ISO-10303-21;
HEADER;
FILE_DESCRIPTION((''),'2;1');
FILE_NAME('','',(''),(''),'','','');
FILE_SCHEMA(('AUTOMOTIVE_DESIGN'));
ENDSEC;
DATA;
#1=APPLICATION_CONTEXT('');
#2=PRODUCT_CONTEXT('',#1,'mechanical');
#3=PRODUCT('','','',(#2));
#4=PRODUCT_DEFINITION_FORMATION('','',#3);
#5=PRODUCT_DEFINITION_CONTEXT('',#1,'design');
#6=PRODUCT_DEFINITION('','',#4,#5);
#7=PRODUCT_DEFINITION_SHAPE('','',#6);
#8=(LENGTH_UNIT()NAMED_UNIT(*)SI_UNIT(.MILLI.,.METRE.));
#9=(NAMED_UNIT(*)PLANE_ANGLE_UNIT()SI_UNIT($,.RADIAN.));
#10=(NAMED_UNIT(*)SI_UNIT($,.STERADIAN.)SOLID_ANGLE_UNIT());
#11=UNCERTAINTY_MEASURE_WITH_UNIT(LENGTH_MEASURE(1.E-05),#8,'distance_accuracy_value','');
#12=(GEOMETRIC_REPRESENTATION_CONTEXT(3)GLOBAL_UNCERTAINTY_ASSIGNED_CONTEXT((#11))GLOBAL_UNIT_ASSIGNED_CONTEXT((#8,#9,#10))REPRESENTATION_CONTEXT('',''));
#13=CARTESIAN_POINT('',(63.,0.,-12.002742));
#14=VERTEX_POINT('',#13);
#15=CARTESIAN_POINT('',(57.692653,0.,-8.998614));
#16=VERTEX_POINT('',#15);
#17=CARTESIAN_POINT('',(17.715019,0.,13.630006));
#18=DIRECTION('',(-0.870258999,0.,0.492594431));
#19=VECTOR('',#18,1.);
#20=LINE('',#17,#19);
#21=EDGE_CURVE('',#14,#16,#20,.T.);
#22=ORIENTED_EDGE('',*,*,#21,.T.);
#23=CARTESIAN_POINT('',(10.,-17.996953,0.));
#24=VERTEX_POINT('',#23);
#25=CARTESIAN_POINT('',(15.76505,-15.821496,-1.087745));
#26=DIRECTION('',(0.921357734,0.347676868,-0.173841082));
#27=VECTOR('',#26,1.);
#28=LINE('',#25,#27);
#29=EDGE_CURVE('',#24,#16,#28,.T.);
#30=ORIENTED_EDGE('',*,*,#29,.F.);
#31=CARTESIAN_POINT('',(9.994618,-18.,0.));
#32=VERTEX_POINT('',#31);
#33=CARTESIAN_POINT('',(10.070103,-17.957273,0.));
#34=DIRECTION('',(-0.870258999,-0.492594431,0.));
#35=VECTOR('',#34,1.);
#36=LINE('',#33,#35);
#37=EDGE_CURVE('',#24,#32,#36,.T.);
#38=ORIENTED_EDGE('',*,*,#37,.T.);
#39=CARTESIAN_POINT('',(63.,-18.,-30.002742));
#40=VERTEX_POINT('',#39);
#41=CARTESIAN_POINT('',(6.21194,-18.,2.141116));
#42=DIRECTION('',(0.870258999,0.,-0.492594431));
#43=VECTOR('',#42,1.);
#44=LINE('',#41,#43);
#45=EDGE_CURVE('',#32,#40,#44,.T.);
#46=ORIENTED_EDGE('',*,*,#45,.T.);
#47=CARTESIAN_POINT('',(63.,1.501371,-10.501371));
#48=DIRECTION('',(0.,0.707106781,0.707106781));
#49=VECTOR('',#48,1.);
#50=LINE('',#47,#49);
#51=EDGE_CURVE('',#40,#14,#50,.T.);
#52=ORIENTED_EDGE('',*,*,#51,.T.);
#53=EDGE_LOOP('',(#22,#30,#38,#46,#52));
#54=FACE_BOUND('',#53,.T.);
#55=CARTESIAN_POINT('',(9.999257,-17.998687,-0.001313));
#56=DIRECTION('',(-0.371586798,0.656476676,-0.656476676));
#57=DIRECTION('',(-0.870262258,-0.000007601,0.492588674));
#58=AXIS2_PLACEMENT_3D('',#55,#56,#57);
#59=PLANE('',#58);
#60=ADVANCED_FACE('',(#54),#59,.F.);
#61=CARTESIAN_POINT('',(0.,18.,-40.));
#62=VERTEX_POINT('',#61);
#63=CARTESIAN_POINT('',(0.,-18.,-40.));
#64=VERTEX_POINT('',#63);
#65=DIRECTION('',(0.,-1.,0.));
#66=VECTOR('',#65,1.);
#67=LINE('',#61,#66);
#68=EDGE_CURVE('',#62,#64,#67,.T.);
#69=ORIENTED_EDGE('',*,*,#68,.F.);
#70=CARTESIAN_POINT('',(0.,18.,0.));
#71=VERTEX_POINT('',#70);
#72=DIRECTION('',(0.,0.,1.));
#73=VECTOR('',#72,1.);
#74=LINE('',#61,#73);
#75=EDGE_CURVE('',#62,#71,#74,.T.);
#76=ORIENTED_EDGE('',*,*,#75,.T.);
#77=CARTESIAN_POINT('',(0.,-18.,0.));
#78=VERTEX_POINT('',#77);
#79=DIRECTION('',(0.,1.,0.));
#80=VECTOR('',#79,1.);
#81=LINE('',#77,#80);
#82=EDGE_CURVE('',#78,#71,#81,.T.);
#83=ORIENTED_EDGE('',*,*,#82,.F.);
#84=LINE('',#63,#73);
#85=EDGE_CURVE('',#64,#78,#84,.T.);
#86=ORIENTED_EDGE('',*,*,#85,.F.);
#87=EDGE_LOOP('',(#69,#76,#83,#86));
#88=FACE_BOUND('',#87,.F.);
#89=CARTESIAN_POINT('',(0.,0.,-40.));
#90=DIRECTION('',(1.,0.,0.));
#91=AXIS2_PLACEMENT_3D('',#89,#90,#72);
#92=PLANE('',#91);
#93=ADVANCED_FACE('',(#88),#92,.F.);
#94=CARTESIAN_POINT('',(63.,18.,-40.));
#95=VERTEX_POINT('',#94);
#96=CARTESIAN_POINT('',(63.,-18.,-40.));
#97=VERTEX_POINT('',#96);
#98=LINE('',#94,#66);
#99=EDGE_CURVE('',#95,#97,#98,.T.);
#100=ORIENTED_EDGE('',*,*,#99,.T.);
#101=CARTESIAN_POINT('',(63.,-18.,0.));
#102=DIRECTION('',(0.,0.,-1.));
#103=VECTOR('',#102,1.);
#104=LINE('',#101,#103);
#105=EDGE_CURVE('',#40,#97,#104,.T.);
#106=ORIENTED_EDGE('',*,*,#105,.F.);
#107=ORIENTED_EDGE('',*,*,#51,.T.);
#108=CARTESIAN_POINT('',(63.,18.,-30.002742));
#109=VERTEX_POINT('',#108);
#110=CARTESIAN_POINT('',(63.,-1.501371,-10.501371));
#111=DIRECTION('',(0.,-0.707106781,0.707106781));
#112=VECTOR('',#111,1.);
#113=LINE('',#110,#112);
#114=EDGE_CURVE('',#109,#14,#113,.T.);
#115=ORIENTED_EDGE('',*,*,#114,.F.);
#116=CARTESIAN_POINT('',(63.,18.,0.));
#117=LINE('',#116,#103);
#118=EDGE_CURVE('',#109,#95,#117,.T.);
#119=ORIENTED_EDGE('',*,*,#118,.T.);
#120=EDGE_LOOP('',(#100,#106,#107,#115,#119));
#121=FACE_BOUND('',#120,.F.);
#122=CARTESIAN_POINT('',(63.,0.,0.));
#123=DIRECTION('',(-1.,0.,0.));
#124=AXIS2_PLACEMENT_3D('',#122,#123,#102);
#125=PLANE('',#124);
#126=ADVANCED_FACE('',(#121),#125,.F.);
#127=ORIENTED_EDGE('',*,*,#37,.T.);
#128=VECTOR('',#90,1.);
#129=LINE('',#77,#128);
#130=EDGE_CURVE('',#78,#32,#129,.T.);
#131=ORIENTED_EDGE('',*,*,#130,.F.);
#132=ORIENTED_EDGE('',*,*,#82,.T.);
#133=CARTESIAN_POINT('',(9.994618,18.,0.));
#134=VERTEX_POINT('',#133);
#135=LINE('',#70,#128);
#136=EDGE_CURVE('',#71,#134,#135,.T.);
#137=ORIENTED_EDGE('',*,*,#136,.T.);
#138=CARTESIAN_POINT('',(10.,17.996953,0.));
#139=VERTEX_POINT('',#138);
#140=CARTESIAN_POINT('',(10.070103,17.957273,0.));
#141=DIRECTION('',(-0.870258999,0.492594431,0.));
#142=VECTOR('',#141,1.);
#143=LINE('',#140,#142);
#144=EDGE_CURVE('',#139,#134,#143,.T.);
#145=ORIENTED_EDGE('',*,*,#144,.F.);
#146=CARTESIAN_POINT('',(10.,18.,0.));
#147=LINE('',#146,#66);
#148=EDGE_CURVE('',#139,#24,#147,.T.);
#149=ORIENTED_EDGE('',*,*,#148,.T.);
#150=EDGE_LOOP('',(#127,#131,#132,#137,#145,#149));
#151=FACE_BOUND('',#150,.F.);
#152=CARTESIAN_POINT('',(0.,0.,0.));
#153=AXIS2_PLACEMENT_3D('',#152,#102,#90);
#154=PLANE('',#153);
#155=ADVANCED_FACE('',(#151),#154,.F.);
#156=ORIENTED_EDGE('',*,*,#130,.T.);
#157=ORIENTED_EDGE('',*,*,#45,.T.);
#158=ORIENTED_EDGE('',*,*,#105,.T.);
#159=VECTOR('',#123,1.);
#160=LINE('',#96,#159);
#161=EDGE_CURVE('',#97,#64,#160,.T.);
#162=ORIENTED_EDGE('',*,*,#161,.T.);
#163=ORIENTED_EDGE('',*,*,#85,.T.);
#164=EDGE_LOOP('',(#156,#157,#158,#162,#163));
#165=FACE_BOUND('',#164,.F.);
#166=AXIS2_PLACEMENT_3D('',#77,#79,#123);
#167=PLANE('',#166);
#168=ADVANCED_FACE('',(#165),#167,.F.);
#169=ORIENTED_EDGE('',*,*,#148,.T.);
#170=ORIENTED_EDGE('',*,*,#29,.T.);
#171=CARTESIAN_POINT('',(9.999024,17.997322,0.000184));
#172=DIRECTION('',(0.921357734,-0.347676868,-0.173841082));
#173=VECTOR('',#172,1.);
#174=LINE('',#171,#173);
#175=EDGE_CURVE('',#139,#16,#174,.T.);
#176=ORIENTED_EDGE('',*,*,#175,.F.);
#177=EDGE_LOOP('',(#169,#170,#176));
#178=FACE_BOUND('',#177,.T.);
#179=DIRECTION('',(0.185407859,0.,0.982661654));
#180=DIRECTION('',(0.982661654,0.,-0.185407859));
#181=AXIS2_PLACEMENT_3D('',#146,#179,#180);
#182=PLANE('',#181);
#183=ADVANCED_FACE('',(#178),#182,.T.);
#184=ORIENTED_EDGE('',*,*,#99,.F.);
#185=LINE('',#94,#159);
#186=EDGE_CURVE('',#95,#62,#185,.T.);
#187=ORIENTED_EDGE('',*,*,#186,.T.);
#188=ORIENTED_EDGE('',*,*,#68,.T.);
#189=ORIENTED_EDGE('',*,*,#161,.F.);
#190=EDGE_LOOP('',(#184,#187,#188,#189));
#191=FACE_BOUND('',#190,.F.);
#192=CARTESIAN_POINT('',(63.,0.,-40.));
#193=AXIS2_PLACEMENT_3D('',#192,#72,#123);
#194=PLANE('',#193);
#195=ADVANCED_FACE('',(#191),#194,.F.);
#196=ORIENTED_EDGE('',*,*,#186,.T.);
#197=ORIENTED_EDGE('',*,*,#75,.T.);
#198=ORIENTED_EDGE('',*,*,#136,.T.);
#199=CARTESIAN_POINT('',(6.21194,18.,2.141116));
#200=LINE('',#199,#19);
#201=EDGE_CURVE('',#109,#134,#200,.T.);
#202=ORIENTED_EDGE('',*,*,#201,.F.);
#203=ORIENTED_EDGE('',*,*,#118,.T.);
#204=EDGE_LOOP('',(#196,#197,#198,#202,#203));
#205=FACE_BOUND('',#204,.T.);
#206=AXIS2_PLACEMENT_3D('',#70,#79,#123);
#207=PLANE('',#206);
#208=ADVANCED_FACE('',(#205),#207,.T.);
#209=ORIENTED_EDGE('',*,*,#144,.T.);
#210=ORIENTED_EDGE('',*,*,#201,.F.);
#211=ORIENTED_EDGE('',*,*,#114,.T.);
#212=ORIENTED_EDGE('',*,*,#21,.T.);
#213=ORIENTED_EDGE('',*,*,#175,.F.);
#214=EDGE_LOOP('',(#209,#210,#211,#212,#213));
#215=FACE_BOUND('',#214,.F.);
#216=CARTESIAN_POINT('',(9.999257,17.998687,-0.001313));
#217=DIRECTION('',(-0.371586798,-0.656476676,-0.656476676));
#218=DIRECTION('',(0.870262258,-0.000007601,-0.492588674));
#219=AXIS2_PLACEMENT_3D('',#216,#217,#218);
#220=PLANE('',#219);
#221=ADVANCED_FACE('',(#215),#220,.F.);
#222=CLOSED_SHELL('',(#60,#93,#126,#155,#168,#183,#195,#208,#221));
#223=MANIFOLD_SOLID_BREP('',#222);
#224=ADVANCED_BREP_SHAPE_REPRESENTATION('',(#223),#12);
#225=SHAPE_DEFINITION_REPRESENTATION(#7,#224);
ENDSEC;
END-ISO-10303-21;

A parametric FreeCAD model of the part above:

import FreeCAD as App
import Part
import Sketcher
from FreeCAD import Vector
Q = App.Units.Quantity

doc = App.newDocument("Part")
body = doc.addObject("PartDesign::Body", "Body")

# Sketch on XZ plane
sketch1 = body.newObject("Sketcher::SketchObject", "Sketch")
sketch1.AttachmentSupport = (doc.getObject("XZ_Plane"), [""])
sketch1.MapMode = "FlatFace"
sketch1.addGeometry([
    Part.LineSegment(Vector(0, -40, 0), Vector(0, 0, 0)),
    Part.LineSegment(Vector(0, 0, 0), Vector(63, 0, 0)),
    Part.LineSegment(Vector(63, 0, 0), Vector(63, -40, 0)),
    Part.LineSegment(Vector(63, -40, 0), Vector(0, -40, 0)),
], False)
sketch1.addConstraint([
    Sketcher.Constraint("Coincident", 0, 2, 1, 1),
    Sketcher.Constraint("Coincident", 1, 2, 2, 1),
    Sketcher.Constraint("Coincident", 2, 2, 3, 1),
    Sketcher.Constraint("Coincident", 3, 2, 0, 1),
    Sketcher.Constraint("Vertical", 0),
    Sketcher.Constraint("Horizontal", 1),
    Sketcher.Constraint("Vertical", 2),
    Sketcher.Constraint("Horizontal", 3),
    Sketcher.Constraint("Coincident", 0, 2, -1, 1),
    Sketcher.Constraint("DistanceX", 1, 1, 1, 2, Q("63 mm")),
    Sketcher.Constraint("DistanceY", 0, 1, 0, 2, Q("40 mm")),
])
pad1 = body.newObject("PartDesign::Pad", "Pad")
pad1.Profile = sketch1
pad1.Length = 36
pad1.Midplane = True

# Sketch on XZ plane
sketch2 = body.newObject("Sketcher::SketchObject", "Sketch001")
sketch2.AttachmentSupport = (doc.getObject("XZ_Plane"), [""])
sketch2.MapMode = "FlatFace"
sketch2.AttachmentOffset = App.Placement(Vector(0, 0, -18), App.Rotation())
sketch2.addGeometry([
    Part.LineSegment(Vector(63, -10, 0), Vector(10, 0, 0)),
    Part.LineSegment(Vector(10, 0, 0), Vector(63, 0, 0)),
    Part.LineSegment(Vector(63, 0, 0), Vector(63, -10, 0)),
], False)
sketch2.addConstraint([
    Sketcher.Constraint("Coincident", 0, 2, 1, 1),
    Sketcher.Constraint("Coincident", 1, 2, 2, 1),
    Sketcher.Constraint("Coincident", 2, 2, 0, 1),
    Sketcher.Constraint("Horizontal", 1),
    Sketcher.Constraint("Vertical", 2),
    Sketcher.Constraint("PointOnObject", 0, 2, -1),
    Sketcher.Constraint("DistanceY", 2, 2, 2, 1, Q("10 mm")),
    Sketcher.Constraint("DistanceX", -1, 1, 0, 2, Q("10 mm")),
    Sketcher.Constraint("DistanceX", 1, 1, 1, 2, Q("53 mm")),
])
pocket1 = body.newObject("PartDesign::Pocket", "Pocket")
pocket1.Profile = sketch2
pocket1.Length = 40
pocket1.Reversed = True

# Sketch on an angled plane
sketch3 = body.newObject("Sketcher::SketchObject", "Sketch002")
sketch3.Placement = App.Placement(Vector(10, 18, 0), App.Rotation(Vector(0.870262258, -0.000007601, -0.492588674), Vector(0.323367985, -0.754346322, 0.571309699), Vector(-0.371586798, -0.656476676, -0.656476676), "ZXY"))
sketch3.addGeometry([
    Part.LineSegment(Vector(-15, 29, 0), Vector(-15, -12, 0)),
    Part.LineSegment(Vector(-15, -12, 0), Vector(94, -12, 0)),
    Part.LineSegment(Vector(94, -12, 0), Vector(94, 29, 0)),
    Part.LineSegment(Vector(94, 29, 0), Vector(-15, 29, 0)),
], False)
sketch3.addConstraint([
    Sketcher.Constraint("Coincident", 0, 2, 1, 1),
    Sketcher.Constraint("Coincident", 1, 2, 2, 1),
    Sketcher.Constraint("Coincident", 2, 2, 3, 1),
    Sketcher.Constraint("Coincident", 3, 2, 0, 1),
    Sketcher.Constraint("Vertical", 0),
    Sketcher.Constraint("Horizontal", 1),
    Sketcher.Constraint("Vertical", 2),
    Sketcher.Constraint("Horizontal", 3),
    Sketcher.Constraint("DistanceX", 1, 1, 1, 2, Q("108.8713 mm")),
    Sketcher.Constraint("DistanceY", 0, 2, 0, 1, Q("41.1384 mm")),
    Sketcher.Constraint("DistanceX", -1, 1, 1, 2, Q("93.717 mm")),
    Sketcher.Constraint("DistanceY", 0, 2, -1, 1, Q("12.3218 mm")),
])
pocket2 = body.newObject("PartDesign::Pocket", "Pocket001")
pocket2.Profile = sketch3
pocket2.Length = 40
doc.recompute()

mirrored = body.newObject("PartDesign::Mirrored", "Mirrored")
mirrored.Originals = [pocket2]
mirrored.MirrorPlane = (doc.getObject("XZ_Plane"), [""])
body.Tip = mirrored

doc.recompute()
